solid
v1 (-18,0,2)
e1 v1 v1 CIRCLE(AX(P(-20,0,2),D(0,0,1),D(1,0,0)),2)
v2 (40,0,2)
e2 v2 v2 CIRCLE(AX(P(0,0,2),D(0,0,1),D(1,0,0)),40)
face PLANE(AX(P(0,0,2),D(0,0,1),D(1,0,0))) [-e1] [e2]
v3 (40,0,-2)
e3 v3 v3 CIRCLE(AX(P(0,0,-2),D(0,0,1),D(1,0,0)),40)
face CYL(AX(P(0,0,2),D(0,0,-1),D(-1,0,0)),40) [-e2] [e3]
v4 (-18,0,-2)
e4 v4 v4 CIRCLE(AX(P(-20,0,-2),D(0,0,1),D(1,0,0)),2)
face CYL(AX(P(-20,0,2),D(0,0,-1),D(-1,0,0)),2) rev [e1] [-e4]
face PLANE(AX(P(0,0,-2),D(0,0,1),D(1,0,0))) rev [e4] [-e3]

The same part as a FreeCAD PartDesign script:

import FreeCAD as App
import Part
import Sketcher
from FreeCAD import Vector
Q = App.Units.Quantity

doc = App.newDocument("Part")
params = doc.addObject("Spreadsheet::Sheet", "Params")
for row, (alias, value) in enumerate([
    ("sketch1_diameter", "80 mm"),
    ("sketch1_diameter2", "4 mm"),
    ("pad1_length", "4 mm"),
], start=1):
    params.set(f"A{row}", alias)
    params.set(f"B{row}", "=" + value)
    params.setAlias(f"B{row}", alias)

body = doc.addObject("PartDesign::Body", "Body")

sketch1 = body.newObject("Sketcher::SketchObject", "Sketch")
sketch1.AttachmentSupport = (doc.getObject("XY_Plane"), [""])
sketch1.MapMode = "FlatFace"
sketch1.addGeometry([
    Part.Circle(Vector(0, 0, 0), Vector(0, 0, 1), 40),
    Part.Circle(Vector(-20, 0, 0), Vector(0, 0, 1), 2),
], False)
sketch1.addConstraint([
    Sketcher.Constraint("Coincident", 0, 3, -1, 1),
    Sketcher.Constraint("PointOnObject", 1, 3, -1),
    Sketcher.Constraint("Diameter", 0, Q("80 mm")),
    Sketcher.Constraint("Diameter", 1, Q("4 mm")),
    Sketcher.Constraint("DistanceX", 1, 3, -1, 1, Q("20 mm")),
])
sketch1.setExpression("Constraints[2]", "Params.sketch1_diameter")
sketch1.setExpression("Constraints[3]", "Params.sketch1_diameter2")
pad1 = body.newObject("PartDesign::Pad", "Pad")
pad1.Profile = sketch1
pad1.setExpression("Length", "Params.pad1_length")
pad1.Midplane = True

doc.recompute()
